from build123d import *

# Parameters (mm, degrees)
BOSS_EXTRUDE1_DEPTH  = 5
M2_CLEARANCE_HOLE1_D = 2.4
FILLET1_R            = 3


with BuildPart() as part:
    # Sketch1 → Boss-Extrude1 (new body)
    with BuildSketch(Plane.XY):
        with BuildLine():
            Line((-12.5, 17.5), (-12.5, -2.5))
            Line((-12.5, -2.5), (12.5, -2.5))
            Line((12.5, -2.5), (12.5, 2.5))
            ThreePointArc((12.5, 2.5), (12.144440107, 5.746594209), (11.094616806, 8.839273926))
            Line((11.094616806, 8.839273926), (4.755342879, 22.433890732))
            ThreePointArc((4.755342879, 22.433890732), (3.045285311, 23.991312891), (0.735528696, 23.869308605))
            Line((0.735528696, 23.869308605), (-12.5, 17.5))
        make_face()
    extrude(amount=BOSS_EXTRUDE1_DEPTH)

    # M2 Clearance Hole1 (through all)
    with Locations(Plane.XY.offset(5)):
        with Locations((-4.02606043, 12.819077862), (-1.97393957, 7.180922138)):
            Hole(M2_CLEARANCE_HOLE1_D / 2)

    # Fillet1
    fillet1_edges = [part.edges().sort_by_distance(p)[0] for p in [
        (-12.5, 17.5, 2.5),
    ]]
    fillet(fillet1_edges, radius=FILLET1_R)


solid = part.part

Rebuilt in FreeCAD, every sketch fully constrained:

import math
import FreeCAD as App
import Part
import Sketcher

V = App.Vector
Q = App.Units.Quantity


def edges_at(feature, points):
    """Names of the edges that pass closest to the given points."""
    edges = feature.Shape.Edges
    near = lambda p: min(range(len(edges)), key=lambda i: edges[i].distToShape(Part.Vertex(*p))[0])
    return sorted({f"Edge{near(p) + 1}" for p in points})

doc = App.newDocument("Part")
params = doc.addObject("Spreadsheet::Sheet", "Params")
for row, (alias, value) in enumerate([
    ("sketch1_radius", "15 mm"),
    ("sketch1_radius2", "3 mm"),
    ("sketch1_width", "25 mm"),
    ("sketch1_height", "20 mm"),
    ("sketch1_height2", "5 mm"),
    ("pad1_length", "5 mm"),
    ("sketch2_diameter", "2.4 mm"),
    ("hole_diameter", "2.4 mm"),
    ("fillet_radius", "3 mm"),
], start=1):
    params.set(f"A{row}", alias)
    params.set(f"B{row}", "=" + value)
    params.setAlias(f"B{row}", alias)

body = doc.addObject("PartDesign::Body", "Body")

# Sketch on XY plane
sketch1 = body.newObject("Sketcher::SketchObject", "Sketch")
sketch1.AttachmentSupport = (doc.getObject("XY_Plane"), [""])
sketch1.MapMode = "FlatFace"
sketch1.addGeometry([
    Part.LineSegment(V(-12.5, 17.5, 0), V(-12.5, -2.5, 0)),  # 0
    Part.LineSegment(V(-12.5, -2.5, 0), V(12.5, -2.5, 0)),  # 1
    Part.LineSegment(V(12.5, -2.5, 0), V(12.5, 2.5, 0)),  # 2
    Part.ArcOfCircle(Part.Circle(V(-2.5, 2.5, 0), V(0, 0, 1), 15), math.radians(0), math.radians(25)),  # 3
    Part.LineSegment(V(11.094617, 8.839274, 0), V(4.755343, 22.433891, 0)),  # 4
    Part.ArcOfCircle(Part.Circle(V(2.03642, 21.166036, 0), V(0, 0, 1), 3), math.radians(25), math.radians(115.698168)),  # 5
    Part.LineSegment(V(0.735529, 23.869309, 0), V(-12.5, 17.5, 0)),  # 6
], False)
sketch1.addConstraint([
    Sketcher.Constraint("Coincident", 0, 2, 1, 1),
    Sketcher.Constraint("Coincident", 1, 2, 2, 1),
    Sketcher.Constraint("Tangent", 2, 2, 3, 1),
    Sketcher.Constraint("Tangent", 3, 2, 4, 1),
    Sketcher.Constraint("Tangent", 4, 2, 5, 1),
    Sketcher.Constraint("Tangent", 5, 2, 6, 1),
    Sketcher.Constraint("Coincident", 6, 2, 0, 1),
    Sketcher.Constraint("Vertical", 0),
    Sketcher.Constraint("Horizontal", 1),
    Sketcher.Constraint("Vertical", 2),
    Sketcher.Constraint("Symmetric", 0, 2, 2, 2, -1, 1),
    Sketcher.Constraint("Radius", 3, Q("15 mm")),
    Sketcher.Constraint("Radius", 5, Q("3 mm")),
    Sketcher.Constraint("DistanceX", 1, 1, 1, 2, Q("25 mm")),
    Sketcher.Constraint("DistanceY", 0, 2, 0, 1, Q("20 mm")),
    Sketcher.Constraint("DistanceY", 2, 1, 2, 2, Q("5 mm")),
    Sketcher.Constraint("Angle", 4, Q("115 deg")),
    Sketcher.Constraint("Distance", 4, Q("15 mm")),
])
sketch1.setExpression("Constraints[11]", "Params.sketch1_radius")
sketch1.setExpression("Constraints[12]", "Params.sketch1_radius2")
sketch1.setExpression("Constraints[13]", "Params.sketch1_width")
sketch1.setExpression("Constraints[14]", "Params.sketch1_height")
sketch1.setExpression("Constraints[15]", "Params.sketch1_height2")
pad1 = body.newObject("PartDesign::Pad", "Pad")
pad1.Profile = sketch1
pad1.setExpression("Length", "Params.pad1_length")

# Sketch on XY plane
sketch2 = body.newObject("Sketcher::SketchObject", "Sketch001")
sketch2.AttachmentSupport = (doc.getObject("XY_Plane"), [""])
sketch2.MapMode = "FlatFace"
sketch2.AttachmentOffset = App.Placement(V(0, 0, 5), App.Rotation())
sketch2.addGeometry([
    Part.Circle(V(-4.02606, 12.819078, 0), V(0, 0, 1), 1.2),
    Part.Circle(V(-1.97394, 7.180922, 0), V(0, 0, 1), 1.2),
], False)
sketch2.addConstraint([
    Sketcher.Constraint("Equal", 0, 1),
    Sketcher.Constraint("Diameter", 0, Q("2.4 mm")),
    Sketcher.Constraint("DistanceX", 0, 3, -1, 1, Q("4.02606 mm")),
    Sketcher.Constraint("DistanceX", 1, 3, -1, 1, Q("1.97394 mm")),
    Sketcher.Constraint("DistanceY", -1, 1, 0, 3, Q("12.819078 mm")),
    Sketcher.Constraint("DistanceY", -1, 1, 1, 3, Q("7.180922 mm")),
])
sketch2.setExpression("Constraints[1]", "Params.sketch2_diameter")
doc.recompute()
hole = body.newObject("PartDesign::Hole", "Hole")
hole.Profile = sketch2
hole.ThreadType = "None"
hole.setExpression("Diameter", "Params.hole_diameter")
hole.DepthType = "ThroughAll"
doc.recompute()

fillet = body.newObject("PartDesign::Fillet", "Fillet")
fillet.Base = (hole, edges_at(hole, [(-12.5, 17.5, 2.5)]))
fillet.setExpression("Radius", "Params.fillet_radius")

doc.recompute()
